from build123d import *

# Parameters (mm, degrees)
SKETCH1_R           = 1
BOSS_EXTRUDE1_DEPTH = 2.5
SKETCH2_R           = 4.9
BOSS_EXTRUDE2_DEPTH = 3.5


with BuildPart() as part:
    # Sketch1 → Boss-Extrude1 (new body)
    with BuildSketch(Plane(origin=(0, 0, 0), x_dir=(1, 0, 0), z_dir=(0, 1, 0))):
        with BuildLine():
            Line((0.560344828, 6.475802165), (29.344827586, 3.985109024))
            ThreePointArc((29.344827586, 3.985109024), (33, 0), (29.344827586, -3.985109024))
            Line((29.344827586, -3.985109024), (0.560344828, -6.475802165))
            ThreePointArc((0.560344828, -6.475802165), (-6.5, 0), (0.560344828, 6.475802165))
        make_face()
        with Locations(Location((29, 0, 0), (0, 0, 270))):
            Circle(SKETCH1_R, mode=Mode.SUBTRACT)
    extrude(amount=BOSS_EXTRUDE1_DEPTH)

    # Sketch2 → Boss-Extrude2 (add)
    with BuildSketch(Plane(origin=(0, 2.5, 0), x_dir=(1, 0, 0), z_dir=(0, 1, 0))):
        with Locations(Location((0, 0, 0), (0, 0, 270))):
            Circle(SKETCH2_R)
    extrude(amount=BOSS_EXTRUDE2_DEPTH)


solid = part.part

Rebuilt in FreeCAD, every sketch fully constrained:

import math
import FreeCAD as App
import Part
import Sketcher
from FreeCAD import Vector
Q = App.Units.Quantity

doc = App.newDocument("Part")
body = doc.addObject("PartDesign::Body", "Body")

# Sketch on XZ plane
sketch1 = doc.addObject("Sketcher::SketchObject", "Sketch")
body.addObject(sketch1)
sketch1.AttachmentSupport = (doc.XZ_Plane, [""])
sketch1.MapMode = "FlatFace"
sketch1.addGeometry([
    Part.LineSegment(Vector(29.3, -4, 0), Vector(0.6, -6.5, 0)),  # 0
    Part.ArcOfCircle(Part.Circle(Vector(0, 0, 0), Vector(0, 0, 1), 6.5), math.radians(85), math.radians(275)),  # 1
    Part.LineSegment(Vector(0.6, 6.5, 0), Vector(29.3, 4, 0)),  # 2
    Part.ArcOfCircle(Part.Circle(Vector(29, 0, 0), Vector(0, 0, 1), 4), math.radians(-85), math.radians(85)),  # 3
    Part.Circle(Vector(29, 0, 0), Vector(0, 0, 1), 1),  # 4
], False)
sketch1.addConstraint([
    Sketcher.Constraint("Tangent", 0, 2, 1, 2),
    Sketcher.Constraint("Tangent", 1, 1, 2, 1),
    Sketcher.Constraint("Tangent", 2, 2, 3, 2),
    Sketcher.Constraint("Tangent", 3, 1, 0, 1),
    Sketcher.Constraint("Coincident", 1, 3, -1, 1),
    Sketcher.Constraint("Coincident", 4, 3, 3, 3),
    Sketcher.Constraint("PointOnObject", 3, 3, -1),
    Sketcher.Constraint("Diameter", 4, Q("2 mm")),
    Sketcher.Constraint("Radius", 3, Q("4 mm")),
    Sketcher.Constraint("Radius", 1, Q("6.5 mm")),
    Sketcher.Constraint("DistanceX", -1, 1, 3, 3, Q("29 mm")),
])
pad1 = doc.addObject("PartDesign::Pad", "Pad")
body.addObject(pad1)
pad1.Profile = sketch1
pad1.Length = 2.5
pad1.Reversed = True

# Sketch on XZ plane
sketch2 = doc.addObject("Sketcher::SketchObject", "Sketch001")
body.addObject(sketch2)
sketch2.AttachmentSupport = (doc.XZ_Plane, [""])
sketch2.MapMode = "FlatFace"
sketch2.AttachmentOffset = App.Placement(Vector(0, 0, -2.5), App.Rotation())
sketch2.addGeometry(Part.Circle(Vector(0, 0, 0), Vector(0, 0, 1), 4.9), False)
sketch2.addConstraint([
    Sketcher.Constraint("Coincident", 0, 3, -1, 1),
    Sketcher.Constraint("Diameter", 0, Q("9.8 mm")),
])
pad2 = doc.addObject("PartDesign::Pad", "Pad001")
body.addObject(pad2)
pad2.Profile = sketch2
pad2.Length = 3.5
pad2.Reversed = True

doc.recompute()
